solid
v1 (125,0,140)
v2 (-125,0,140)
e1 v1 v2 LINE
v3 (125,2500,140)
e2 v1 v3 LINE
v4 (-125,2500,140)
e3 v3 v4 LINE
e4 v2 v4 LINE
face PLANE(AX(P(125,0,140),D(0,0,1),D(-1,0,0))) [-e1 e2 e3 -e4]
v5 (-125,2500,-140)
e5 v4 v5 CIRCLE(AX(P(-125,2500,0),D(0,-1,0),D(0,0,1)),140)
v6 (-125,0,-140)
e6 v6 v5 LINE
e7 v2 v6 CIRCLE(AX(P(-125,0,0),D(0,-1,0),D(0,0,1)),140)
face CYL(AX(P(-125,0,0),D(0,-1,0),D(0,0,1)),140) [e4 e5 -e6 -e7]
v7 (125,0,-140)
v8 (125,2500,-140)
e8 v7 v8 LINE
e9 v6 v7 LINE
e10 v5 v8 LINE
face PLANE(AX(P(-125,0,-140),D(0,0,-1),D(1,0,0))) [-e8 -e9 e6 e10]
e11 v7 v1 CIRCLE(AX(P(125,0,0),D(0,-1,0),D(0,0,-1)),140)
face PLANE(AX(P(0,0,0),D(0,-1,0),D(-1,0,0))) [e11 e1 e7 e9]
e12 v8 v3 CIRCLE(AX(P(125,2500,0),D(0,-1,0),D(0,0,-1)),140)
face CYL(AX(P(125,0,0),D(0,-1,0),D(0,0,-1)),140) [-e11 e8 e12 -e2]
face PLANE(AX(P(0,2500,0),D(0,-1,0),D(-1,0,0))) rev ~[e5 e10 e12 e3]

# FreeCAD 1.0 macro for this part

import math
import FreeCAD as App
import Part
import Sketcher

V = App.Vector
Q = App.Units.Quantity

doc = App.newDocument("Part")
body = doc.addObject("PartDesign::Body", "Body")

sketch1 = body.newObject("Sketcher::SketchObject", "Sketch")
sketch1.AttachmentSupport = (doc.getObject("XZ_Plane"), [""])
sketch1.MapMode = "FlatFace"
sketch1.addGeometry(Part.LineSegment(V(-125, 140, 0), V(125, 140, 0)), False)
sketch1.addGeometry(Part.ArcOfCircle(Part.Circle(V(125, 0, 0), V(0, 0, 1), 140), math.radians(-90), math.radians(90)), False)
sketch1.addGeometry(Part.LineSegment(V(125, -140, 0), V(-125, -140, 0)), False)
sketch1.addGeometry(Part.ArcOfCircle(Part.Circle(V(-125, 0, 0), V(0, 0, 1), 140), math.radians(90), math.radians(270)), False)
sketch1.addConstraint(Sketcher.Constraint("Tangent", 0, 2, 1, 2))
sketch1.addConstraint(Sketcher.Constraint("Tangent", 1, 1, 2, 1))
sketch1.addConstraint(Sketcher.Constraint("Tangent", 2, 2, 3, 2))
sketch1.addConstraint(Sketcher.Constraint("Tangent", 3, 1, 0, 1))
sketch1.addConstraint(Sketcher.Constraint("Horizontal", 0))
sketch1.addConstraint(Sketcher.Constraint("Horizontal", 2))
sketch1.addConstraint(Sketcher.Constraint("Symmetric", 1, 3, 3, 3, -1, 1))
sketch1.addConstraint(Sketcher.Constraint("Radius", 1, Q("140 mm")))
sketch1.addConstraint(Sketcher.Constraint("DistanceX", 0, 1, 0, 2, Q("250 mm")))
pad1 = body.newObject("PartDesign::Pad", "Pad")
pad1.Profile = sketch1
pad1.Length = 2500
pad1.Reversed = True

doc.recompute()
